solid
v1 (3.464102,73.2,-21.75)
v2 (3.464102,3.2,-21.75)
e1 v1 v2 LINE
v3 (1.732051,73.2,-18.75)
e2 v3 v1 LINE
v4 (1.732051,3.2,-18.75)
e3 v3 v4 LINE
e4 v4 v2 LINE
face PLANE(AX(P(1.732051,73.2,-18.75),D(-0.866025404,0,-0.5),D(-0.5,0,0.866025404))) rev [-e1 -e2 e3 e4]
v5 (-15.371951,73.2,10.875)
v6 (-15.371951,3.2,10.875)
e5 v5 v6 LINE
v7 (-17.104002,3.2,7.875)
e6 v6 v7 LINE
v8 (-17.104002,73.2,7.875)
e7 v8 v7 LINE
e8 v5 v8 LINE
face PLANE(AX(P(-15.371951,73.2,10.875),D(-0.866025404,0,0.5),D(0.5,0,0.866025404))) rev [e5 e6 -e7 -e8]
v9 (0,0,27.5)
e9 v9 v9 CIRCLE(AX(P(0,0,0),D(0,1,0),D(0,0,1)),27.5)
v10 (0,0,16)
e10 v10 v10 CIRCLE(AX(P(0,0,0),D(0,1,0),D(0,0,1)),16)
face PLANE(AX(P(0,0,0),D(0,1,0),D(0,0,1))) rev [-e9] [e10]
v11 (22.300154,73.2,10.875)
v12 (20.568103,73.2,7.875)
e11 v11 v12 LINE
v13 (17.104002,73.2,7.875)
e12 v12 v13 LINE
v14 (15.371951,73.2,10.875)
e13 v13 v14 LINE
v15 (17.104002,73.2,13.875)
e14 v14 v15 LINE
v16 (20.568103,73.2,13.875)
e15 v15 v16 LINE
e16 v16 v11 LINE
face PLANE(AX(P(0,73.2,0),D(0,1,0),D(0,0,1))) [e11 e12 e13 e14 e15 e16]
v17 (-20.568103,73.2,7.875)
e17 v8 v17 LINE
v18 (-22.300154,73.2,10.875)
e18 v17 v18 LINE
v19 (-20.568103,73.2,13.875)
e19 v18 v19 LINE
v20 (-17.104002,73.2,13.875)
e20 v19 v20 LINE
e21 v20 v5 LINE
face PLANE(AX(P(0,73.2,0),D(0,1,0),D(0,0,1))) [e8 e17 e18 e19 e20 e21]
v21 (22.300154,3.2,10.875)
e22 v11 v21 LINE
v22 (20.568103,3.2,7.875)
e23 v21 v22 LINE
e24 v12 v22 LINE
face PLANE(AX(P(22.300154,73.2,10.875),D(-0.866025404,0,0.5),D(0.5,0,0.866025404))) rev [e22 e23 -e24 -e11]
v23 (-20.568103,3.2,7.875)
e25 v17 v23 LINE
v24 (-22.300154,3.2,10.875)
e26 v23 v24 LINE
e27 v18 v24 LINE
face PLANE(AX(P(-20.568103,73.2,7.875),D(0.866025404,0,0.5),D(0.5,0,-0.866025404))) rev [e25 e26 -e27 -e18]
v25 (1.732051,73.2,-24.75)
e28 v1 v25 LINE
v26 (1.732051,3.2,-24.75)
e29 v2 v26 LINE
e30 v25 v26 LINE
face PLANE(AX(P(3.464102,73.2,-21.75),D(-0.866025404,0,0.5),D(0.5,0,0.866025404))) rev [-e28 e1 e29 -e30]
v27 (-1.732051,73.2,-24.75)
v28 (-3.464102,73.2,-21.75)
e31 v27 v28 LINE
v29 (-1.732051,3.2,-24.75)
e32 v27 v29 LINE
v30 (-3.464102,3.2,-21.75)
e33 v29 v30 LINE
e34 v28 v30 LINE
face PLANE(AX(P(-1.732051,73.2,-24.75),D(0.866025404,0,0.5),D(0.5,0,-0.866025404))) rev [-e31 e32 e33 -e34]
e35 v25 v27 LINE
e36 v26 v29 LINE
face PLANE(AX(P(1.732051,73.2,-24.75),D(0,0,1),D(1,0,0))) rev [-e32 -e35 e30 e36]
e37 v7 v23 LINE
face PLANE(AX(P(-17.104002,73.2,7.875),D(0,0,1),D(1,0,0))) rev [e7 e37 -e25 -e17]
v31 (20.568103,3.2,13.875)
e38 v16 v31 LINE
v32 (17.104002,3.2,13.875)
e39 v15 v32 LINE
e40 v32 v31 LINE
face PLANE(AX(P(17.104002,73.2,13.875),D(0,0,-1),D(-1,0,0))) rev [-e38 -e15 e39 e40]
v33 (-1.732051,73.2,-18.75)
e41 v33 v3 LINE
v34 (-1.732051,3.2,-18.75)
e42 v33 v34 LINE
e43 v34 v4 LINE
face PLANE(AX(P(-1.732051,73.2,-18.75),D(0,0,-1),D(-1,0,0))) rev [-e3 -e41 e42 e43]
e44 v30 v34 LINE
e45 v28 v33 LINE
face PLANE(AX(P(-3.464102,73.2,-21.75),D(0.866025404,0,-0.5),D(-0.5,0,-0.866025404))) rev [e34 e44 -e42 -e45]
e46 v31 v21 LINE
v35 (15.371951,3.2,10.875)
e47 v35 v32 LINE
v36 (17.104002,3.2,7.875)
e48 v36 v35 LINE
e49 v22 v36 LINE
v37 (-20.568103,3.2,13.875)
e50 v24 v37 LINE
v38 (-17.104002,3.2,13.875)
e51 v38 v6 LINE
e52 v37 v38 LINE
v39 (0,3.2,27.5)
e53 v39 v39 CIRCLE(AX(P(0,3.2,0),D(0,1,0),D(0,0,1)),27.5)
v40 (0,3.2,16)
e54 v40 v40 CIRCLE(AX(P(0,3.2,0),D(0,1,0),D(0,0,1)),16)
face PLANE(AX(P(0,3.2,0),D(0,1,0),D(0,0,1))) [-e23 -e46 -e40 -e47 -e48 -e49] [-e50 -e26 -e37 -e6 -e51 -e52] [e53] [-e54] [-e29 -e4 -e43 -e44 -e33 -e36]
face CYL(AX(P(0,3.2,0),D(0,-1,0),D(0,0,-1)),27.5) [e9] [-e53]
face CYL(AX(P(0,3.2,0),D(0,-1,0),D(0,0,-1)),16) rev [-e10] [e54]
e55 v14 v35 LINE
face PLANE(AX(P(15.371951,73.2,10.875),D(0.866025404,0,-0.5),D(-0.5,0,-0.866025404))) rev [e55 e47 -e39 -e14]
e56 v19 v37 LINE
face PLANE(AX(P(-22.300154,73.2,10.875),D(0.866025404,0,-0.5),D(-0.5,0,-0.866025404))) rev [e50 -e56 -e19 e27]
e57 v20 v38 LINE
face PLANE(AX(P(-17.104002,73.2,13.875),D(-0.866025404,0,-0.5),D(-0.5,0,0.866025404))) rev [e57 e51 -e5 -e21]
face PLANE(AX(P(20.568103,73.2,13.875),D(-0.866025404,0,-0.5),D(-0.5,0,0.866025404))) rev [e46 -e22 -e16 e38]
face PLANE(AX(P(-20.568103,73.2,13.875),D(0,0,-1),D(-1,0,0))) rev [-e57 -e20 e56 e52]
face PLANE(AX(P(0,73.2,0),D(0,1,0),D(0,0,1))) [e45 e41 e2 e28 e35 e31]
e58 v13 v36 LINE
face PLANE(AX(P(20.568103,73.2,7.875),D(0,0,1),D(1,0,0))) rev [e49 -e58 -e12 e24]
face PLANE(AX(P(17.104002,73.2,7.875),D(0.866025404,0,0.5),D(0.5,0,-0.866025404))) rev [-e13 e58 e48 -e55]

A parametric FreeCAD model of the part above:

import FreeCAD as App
import Part
import Sketcher
Q = App.Units.Quantity

doc = App.newDocument("Part")
body = doc.addObject("PartDesign::Body", "Body")

sketch1 = body.newObject("Sketcher::SketchObject", "Sketch")
sketch1.AttachmentSupport = (doc.getObject("XZ_Plane"), [""])
sketch1.MapMode = "FlatFace"
sketch1.addGeometry(Part.Circle(App.Vector(0, 0, 0), App.Vector(0, 0, 1), 28), False)
sketch1.addGeometry(Part.Circle(App.Vector(0, 0, 0), App.Vector(0, 0, 1), 16), False)
sketch1.addConstraint(Sketcher.Constraint("Coincident", 0, 3, -1, 1))
sketch1.addConstraint(Sketcher.Constraint("Coincident", 1, 3, -1, 1))
sketch1.addConstraint(Sketcher.Constraint("Diameter", 0, Q("55 mm")))
sketch1.addConstraint(Sketcher.Constraint("Diameter", 1, Q("32 mm")))
pad1 = body.newObject("PartDesign::Pad", "Pad")
pad1.Profile = sketch1
pad1.Length = 3.2
pad1.Reversed = True

sketch2 = body.newObject("Sketcher::SketchObject", "Sketch001")
sketch2.AttachmentSupport = (doc.getObject("XZ_Plane"), [""])
sketch2.MapMode = "FlatFace"
sketch2.AttachmentOffset = App.Placement(App.Vector(0, 0, -3.2), App.Rotation())
sketch2.addGeometry(Part.LineSegment(App.Vector(17.1, 13.9, 0), App.Vector(20.6, 13.9, 0)), False)
sketch2.addGeometry(Part.LineSegment(App.Vector(20.6, 13.9, 0), App.Vector(22.3, 10.9, 0)), False)
sketch2.addGeometry(Part.LineSegment(App.Vector(22.3, 10.9, 0), App.Vector(20.6, 7.9, 0)), False)
sketch2.addGeometry(Part.LineSegment(App.Vector(20.6, 7.9, 0), App.Vector(17.1, 7.9, 0)), False)
sketch2.addGeometry(Part.LineSegment(App.Vector(17.1, 7.9, 0), App.Vector(15.4, 10.9, 0)), False)
sketch2.addGeometry(Part.LineSegment(App.Vector(15.4, 10.9, 0), App.Vector(17.1, 13.9, 0)), False)
sketch2.addGeometry(Part.LineSegment(App.Vector(3.5, -21.8, 0), App.Vector(1.7, -24.8, 0)), False)
sketch2.addGeometry(Part.LineSegment(App.Vector(1.7, -24.8, 0), App.Vector(-1.7, -24.8, 0)), False)
sketch2.addGeometry(Part.LineSegment(App.Vector(-1.7, -24.8, 0), App.Vector(-3.5, -21.8, 0)), False)
sketch2.addGeometry(Part.LineSegment(App.Vector(-3.5, -21.8, 0), App.Vector(-1.7, -18.8, 0)), False)
sketch2.addGeometry(Part.LineSegment(App.Vector(-1.7, -18.8, 0), App.Vector(1.7, -18.8, 0)), False)
sketch2.addGeometry(Part.LineSegment(App.Vector(1.7, -18.8, 0), App.Vector(3.5, -21.8, 0)), False)
sketch2.addGeometry(Part.LineSegment(App.Vector(-20.6, 7.9, 0), App.Vector(-22.3, 10.9, 0)), False)
sketch2.addGeometry(Part.LineSegment(App.Vector(-22.3, 10.9, 0), App.Vector(-20.6, 13.9, 0)), False)
sketch2.addGeometry(Part.LineSegment(App.Vector(-20.6, 13.9, 0), App.Vector(-17.1, 13.9, 0)), False)
sketch2.addGeometry(Part.LineSegment(App.Vector(-17.1, 13.9, 0), App.Vector(-15.4, 10.9, 0)), False)
sketch2.addGeometry(Part.LineSegment(App.Vector(-15.4, 10.9, 0), App.Vector(-17.1, 7.9, 0)), False)
sketch2.addGeometry(Part.LineSegment(App.Vector(-17.1, 7.9, 0), App.Vector(-20.6, 7.9, 0)), False)
sketch2.addConstraint(Sketcher.Constraint("Coincident", 0, 2, 1, 1))
sketch2.addConstraint(Sketcher.Constraint("Coincident", 1, 2, 2, 1))
sketch2.addConstraint(Sketcher.Constraint("Coincident", 2, 2, 3, 1))
sketch2.addConstraint(Sketcher.Constraint("Coincident", 3, 2, 4, 1))
sketch2.addConstraint(Sketcher.Constraint("Coincident", 4, 2, 5, 1))
sketch2.addConstraint(Sketcher.Constraint("Coincident", 5, 2, 0, 1))
sketch2.addConstraint(Sketcher.Constraint("Coincident", 6, 2, 7, 1))
sketch2.addConstraint(Sketcher.Constraint("Coincident", 7, 2, 8, 1))
sketch2.addConstraint(Sketcher.Constraint("Coincident", 8, 2, 9, 1))
sketch2.addConstraint(Sketcher.Constraint("Coincident", 9, 2, 10, 1))
sketch2.addConstraint(Sketcher.Constraint("Coincident", 10, 2, 11, 1))
sketch2.addConstraint(Sketcher.Constraint("Coincident", 11, 2, 6, 1))
sketch2.addConstraint(Sketcher.Constraint("Coincident", 12, 2, 13, 1))
sketch2.addConstraint(Sketcher.Constraint("Coincident", 13, 2, 14, 1))
sketch2.addConstraint(Sketcher.Constraint("Coincident", 14, 2, 15, 1))
sketch2.addConstraint(Sketcher.Constraint("Coincident", 15, 2, 16, 1))
sketch2.addConstraint(Sketcher.Constraint("Coincident", 16, 2, 17, 1))
sketch2.addConstraint(Sketcher.Constraint("Coincident", 17, 2, 12, 1))
sketch2.addConstraint(Sketcher.Constraint("Horizontal", 0))
sketch2.addConstraint(Sketcher.Constraint("Horizontal", 3))
sketch2.addConstraint(Sketcher.Constraint("Horizontal", 7))
sketch2.addConstraint(Sketcher.Constraint("Horizontal", 10))
sketch2.addConstraint(Sketcher.Constraint("Horizontal", 14))
sketch2.addConstraint(Sketcher.Constraint("Horizontal", 17))
sketch2.addConstraint(Sketcher.Constraint("Symmetric", 8, 2, 11, 2, -2))
sketch2.addConstraint(Sketcher.Constraint("Symmetric", 1, 2, 12, 2, -2))
sketch2.addConstraint(Sketcher.Constraint("Symmetric", 0, 2, 13, 2, -2))
sketch2.addConstraint(Sketcher.Constraint("Symmetric", 4, 2, 15, 2, -2))
sketch2.addConstraint(Sketcher.Constraint("Symmetric", 3, 2, 16, 2, -2))
sketch2.addConstraint(Sketcher.Constraint("Parallel", 1, 4))
sketch2.addConstraint(Sketcher.Constraint("Parallel", 2, 5))
sketch2.addConstraint(Sketcher.Constraint("Parallel", 5, 6))
sketch2.addConstraint(Sketcher.Constraint("Parallel", 4, 8))
sketch2.addConstraint(Sketcher.Constraint("Parallel", 6, 9))
sketch2.addConstraint(Sketcher.Constraint("Parallel", 8, 11))
sketch2.addConstraint(Sketcher.Constraint("Parallel", 11, 12))
sketch2.addConstraint(Sketcher.Constraint("Parallel", 9, 13))
sketch2.addConstraint(Sketcher.Constraint("Parallel", 12, 15))
sketch2.addConstraint(Sketcher.Constraint("Horizontal", 1, 2, 4, 2))
sketch2.addConstraint(Sketcher.Constraint("Vertical", 0, 2, 2, 2))
sketch2.addConstraint(Sketcher.Constraint("Vertical", 7, 2, 9, 2))
sketch2.addConstraint(Sketcher.Constraint("Equal", 3, 7))
sketch2.addConstraint(Sketcher.Constraint("Equal", 5, 6))
sketch2.addConstraint(Sketcher.Constraint("Angle", 1, Q("-60 deg")))
sketch2.addConstraint(Sketcher.Constraint("DistanceY", 1, 2, 0, 2, Q("3 mm")))
sketch2.addConstraint(Sketcher.Constraint("DistanceY", 6, 2, -1, 1, Q("24.75 mm")))
sketch2.addConstraint(Sketcher.Constraint("DistanceX", 0, 1, 0, 2, Q("3.464102 mm")))
sketch2.addConstraint(Sketcher.Constraint("DistanceY", -1, 1, 0, 2, Q("13.875 mm")))
sketch2.addConstraint(Sketcher.Constraint("DistanceX", -1, 1, 3, 2, Q("17.104002 mm")))
pad2 = body.newObject("PartDesign::Pad", "Pad001")
pad2.Profile = sketch2
pad2.Length = 70
pad2.Reversed = True

doc.recompute()
